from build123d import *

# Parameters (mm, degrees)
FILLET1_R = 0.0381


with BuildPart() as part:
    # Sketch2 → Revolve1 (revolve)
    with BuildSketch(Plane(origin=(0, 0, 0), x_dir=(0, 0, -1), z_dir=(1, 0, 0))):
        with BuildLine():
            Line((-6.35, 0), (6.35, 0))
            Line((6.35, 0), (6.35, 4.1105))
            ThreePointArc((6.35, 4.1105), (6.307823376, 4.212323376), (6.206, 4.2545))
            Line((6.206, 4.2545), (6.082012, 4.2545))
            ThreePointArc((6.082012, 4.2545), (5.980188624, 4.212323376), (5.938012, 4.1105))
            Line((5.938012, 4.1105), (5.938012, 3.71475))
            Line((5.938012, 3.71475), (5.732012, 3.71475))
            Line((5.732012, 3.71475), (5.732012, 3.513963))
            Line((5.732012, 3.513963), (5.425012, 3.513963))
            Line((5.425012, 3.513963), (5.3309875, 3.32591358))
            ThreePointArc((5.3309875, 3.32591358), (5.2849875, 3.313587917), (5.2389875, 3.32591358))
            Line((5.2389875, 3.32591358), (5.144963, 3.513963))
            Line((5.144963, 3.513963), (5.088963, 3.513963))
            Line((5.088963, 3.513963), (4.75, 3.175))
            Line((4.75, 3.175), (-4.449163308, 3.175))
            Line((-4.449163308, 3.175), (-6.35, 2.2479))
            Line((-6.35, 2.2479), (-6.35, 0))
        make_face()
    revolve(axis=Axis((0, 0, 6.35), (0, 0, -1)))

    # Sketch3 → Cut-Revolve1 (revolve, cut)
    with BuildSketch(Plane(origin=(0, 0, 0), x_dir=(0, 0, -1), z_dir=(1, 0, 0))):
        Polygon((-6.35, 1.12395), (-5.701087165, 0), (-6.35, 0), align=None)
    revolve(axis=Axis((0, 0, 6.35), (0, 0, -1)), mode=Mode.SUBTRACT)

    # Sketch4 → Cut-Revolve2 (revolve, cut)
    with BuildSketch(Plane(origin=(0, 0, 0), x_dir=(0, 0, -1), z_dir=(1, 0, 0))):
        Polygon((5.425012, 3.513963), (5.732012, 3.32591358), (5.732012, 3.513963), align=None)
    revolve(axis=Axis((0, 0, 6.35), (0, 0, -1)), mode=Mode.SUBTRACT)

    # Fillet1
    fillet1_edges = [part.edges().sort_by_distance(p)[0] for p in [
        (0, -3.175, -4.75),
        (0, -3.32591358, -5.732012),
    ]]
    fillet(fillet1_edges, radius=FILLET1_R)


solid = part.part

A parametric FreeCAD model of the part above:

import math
import FreeCAD as App
import Part
import Sketcher

V = App.Vector
Q = App.Units.Quantity


def edges_at(feature, points):
    """Names of the edges that pass closest to the given points."""
    edges = feature.Shape.Edges
    near = lambda p: min(range(len(edges)), key=lambda i: edges[i].distToShape(Part.Vertex(*p))[0])
    return sorted({f"Edge{near(p) + 1}" for p in points})

doc = App.newDocument("Part")
body = doc.addObject("PartDesign::Body", "Body")

sketch1 = doc.addObject("Sketcher::SketchObject", "Sketch")
body.addObject(sketch1)
sketch1.AttachmentSupport = (doc.YZ_Plane, [""])
sketch1.MapMode = "FlatFace"
sketch1.addGeometry([
    Part.LineSegment(V(0, 6.35, 0), V(0, -6.35, 0)),
    Part.LineSegment(V(0, -6.35, 0), V(4.11, -6.35, 0)),
    Part.ArcOfCircle(Part.Circle(V(4.11, -6.21, 0), V(0, 0, 1), 0.14), math.radians(-90), math.radians(0)),
    Part.LineSegment(V(4.25, -6.21, 0), V(4.25, -6.08, 0)),
    Part.ArcOfCircle(Part.Circle(V(4.11, -6.08, 0), V(0, 0, 1), 0.14), math.radians(0), math.radians(90)),
    Part.LineSegment(V(4.11, -5.94, 0), V(3.71, -5.94, 0)),
    Part.LineSegment(V(3.71, -5.94, 0), V(3.71, -5.73, 0)),
    Part.LineSegment(V(3.71, -5.73, 0), V(3.51, -5.73, 0)),
    Part.LineSegment(V(3.51, -5.73, 0), V(3.51, -5.43, 0)),
    Part.LineSegment(V(3.51, -5.43, 0), V(3.33, -5.33, 0)),
    Part.ArcOfCircle(Part.Circle(V(3.41, -5.28, 0), V(0, 0, 1), 0.09), math.radians(150), math.radians(210)),
    Part.LineSegment(V(3.33, -5.24, 0), V(3.51, -5.14, 0)),
    Part.LineSegment(V(3.51, -5.14, 0), V(3.51, -5.09, 0)),
    Part.LineSegment(V(3.51, -5.09, 0), V(3.17, -4.75, 0)),
    Part.LineSegment(V(3.17, -4.75, 0), V(3.17, 4.45, 0)),
    Part.LineSegment(V(3.17, 4.45, 0), V(2.25, 6.35, 0)),
    Part.LineSegment(V(2.25, 6.35, 0), V(0, 6.35, 0)),
], False)
sketch1.addConstraint([
    Sketcher.Constraint("Coincident", 0, 2, 1, 1),
    Sketcher.Constraint("Tangent", 1, 2, 2, 1),
    Sketcher.Constraint("Tangent", 2, 2, 3, 1),
    Sketcher.Constraint("Tangent", 3, 2, 4, 1),
    Sketcher.Constraint("Tangent", 4, 2, 5, 1),
    Sketcher.Constraint("Coincident", 5, 2, 6, 1),
    Sketcher.Constraint("Coincident", 6, 2, 7, 1),
    Sketcher.Constraint("Coincident", 7, 2, 8, 1),
    Sketcher.Constraint("Coincident", 8, 2, 9, 1),
    Sketcher.Constraint("Coincident", 9, 2, 10, 2),
    Sketcher.Constraint("Coincident", 10, 1, 11, 1),
    Sketcher.Constraint("Coincident", 11, 2, 12, 1),
    Sketcher.Constraint("Coincident", 12, 2, 13, 1),
    Sketcher.Constraint("Coincident", 13, 2, 14, 1),
    Sketcher.Constraint("Coincident", 14, 2, 15, 1),
    Sketcher.Constraint("Coincident", 15, 2, 16, 1),
    Sketcher.Constraint("Coincident", 16, 2, 0, 1),
    Sketcher.Constraint("Vertical", 0),
    Sketcher.Constraint("Horizontal", 1),
    Sketcher.Constraint("Vertical", 3),
    Sketcher.Constraint("Horizontal", 5),
    Sketcher.Constraint("Vertical", 6),
    Sketcher.Constraint("Horizontal", 7),
    Sketcher.Constraint("Vertical", 8),
    Sketcher.Constraint("Vertical", 12),
    Sketcher.Constraint("Vertical", 14),
    Sketcher.Constraint("Horizontal", 16),
    Sketcher.Constraint("Equal", 2, 4),
    Sketcher.Constraint("Symmetric", 0, 2, 16, 2, -1, 1),
    Sketcher.Constraint("Vertical", 9, 2, 10, 1),
    Sketcher.Constraint("Vertical", 8, 2, 11, 2),
    Sketcher.Constraint("Equal", 9, 11),
    Sketcher.Constraint("DistanceY", 0, 2, 0, 1, Q("0.5 in")),
    Sketcher.Constraint("Angle", 13, Q("135 deg")),
    Sketcher.Constraint("Angle", 15, Q("116 deg")),
    Sketcher.Constraint("Radius", 2, 0.144),
    Sketcher.Constraint("Radius", 10, 0.092),
    Sketcher.Constraint("DistanceX", 16, 2, 16, 1, Q("0.0885 in")),
    Sketcher.Constraint("DistanceX", -1, 1, 13, 2, Q("0.125 in")),
    Sketcher.Constraint("DistanceX", 1, 1, 1, 2, 4.1105),
    Sketcher.Constraint("DistanceY", 6, 1, 6, 2, 0.206),
    Sketcher.Constraint("DistanceY", 8, 1, 8, 2, 0.307),
    Sketcher.Constraint("DistanceY", 12, 1, 12, 2, 0.056),
    Sketcher.Constraint("DistanceX", 5, 2, 5, 1, 0.39575),
    Sketcher.Constraint("DistanceY", 3, 1, 3, 2, 0.123988),
    Sketcher.Constraint("DistanceY", 13, 2, -1, 1, 4.75),
    Sketcher.Constraint("DistanceY", 9, 2, 10, 3, 0.046),
    Sketcher.Constraint("DistanceX", 7, 2, 7, 1, 0.200787),
    Sketcher.Constraint("DistanceX", 9, 2, 8, 2, 0.188049),
])
revolution = doc.addObject("PartDesign::Revolution", "Revolution")
body.addObject(revolution)
revolution.Profile = sketch1
revolution.ReferenceAxis = (sketch1, ["V_Axis"])
revolution.Angle = 360

sketch2 = doc.addObject("Sketcher::SketchObject", "Sketch001")
body.addObject(sketch2)
sketch2.AttachmentSupport = (doc.YZ_Plane, [""])
sketch2.MapMode = "FlatFace"
sketch2.addGeometry([
    Part.LineSegment(V(0, 5.7, 0), V(1.1, 6.3, 0)),
    Part.LineSegment(V(1.1, 6.3, 0), V(0, 6.3, 0)),
    Part.LineSegment(V(0, 6.3, 0), V(0, 5.7, 0)),
], False)
sketch2.addConstraint([
    Sketcher.Constraint("Coincident", 0, 2, 1, 1),
    Sketcher.Constraint("Coincident", 1, 2, 2, 1),
    Sketcher.Constraint("Coincident", 2, 2, 0, 1),
    Sketcher.Constraint("Horizontal", 1),
    Sketcher.Constraint("Vertical", 2),
    Sketcher.Constraint("PointOnObject", 1, 2, -2),
    Sketcher.Constraint("Angle", 0, Q("30 deg")),
    Sketcher.Constraint("DistanceY", -1, 1, 0, 2, Q("0.25 in")),
    Sketcher.Constraint("DistanceX", 1, 2, 1, 1, 1.12395),
])
groove = doc.addObject("PartDesign::Groove", "Groove")
body.addObject(groove)
groove.Profile = sketch2
groove.ReferenceAxis = (sketch2, ["V_Axis"])
groove.Angle = 360

sketch3 = doc.addObject("Sketcher::SketchObject", "Sketch002")
body.addObject(sketch3)
sketch3.AttachmentSupport = (doc.YZ_Plane, [""])
sketch3.MapMode = "FlatFace"
sketch3.addGeometry([
    Part.LineSegment(V(3.51, -5.43, 0), V(3.33, -5.73, 0)),
    Part.LineSegment(V(3.33, -5.73, 0), V(3.51, -5.73, 0)),
    Part.LineSegment(V(3.51, -5.73, 0), V(3.51, -5.43, 0)),
], False)
sketch3.addConstraint([
    Sketcher.Constraint("Coincident", 0, 2, 1, 1),
    Sketcher.Constraint("Coincident", 1, 2, 2, 1),
    Sketcher.Constraint("Coincident", 2, 2, 0, 1),
    Sketcher.Constraint("Horizontal", 1),
    Sketcher.Constraint("Vertical", 2),
    Sketcher.Constraint("DistanceY", 2, 1, 2, 2, 0.307),
    Sketcher.Constraint("DistanceX", 1, 1, 1, 2, 0.188049),
    Sketcher.Constraint("DistanceY", 2, 2, -1, 1, 5.425012),
    Sketcher.Constraint("DistanceX", -1, 1, 0, 2, 3.325914),
])
groove2 = doc.addObject("PartDesign::Groove", "Groove001")
body.addObject(groove2)
groove2.Profile = sketch3
groove2.ReferenceAxis = (sketch3, ["V_Axis"])
groove2.Angle = 360
doc.recompute()

fillet = doc.addObject("PartDesign::Fillet", "Fillet")
body.addObject(fillet)
fillet.Base = (groove2, edges_at(groove2, [(0, -3.175, -4.75), (0, -3.326, -5.732)]))
fillet.Radius = Q("0.0015 in")

doc.recompute()
